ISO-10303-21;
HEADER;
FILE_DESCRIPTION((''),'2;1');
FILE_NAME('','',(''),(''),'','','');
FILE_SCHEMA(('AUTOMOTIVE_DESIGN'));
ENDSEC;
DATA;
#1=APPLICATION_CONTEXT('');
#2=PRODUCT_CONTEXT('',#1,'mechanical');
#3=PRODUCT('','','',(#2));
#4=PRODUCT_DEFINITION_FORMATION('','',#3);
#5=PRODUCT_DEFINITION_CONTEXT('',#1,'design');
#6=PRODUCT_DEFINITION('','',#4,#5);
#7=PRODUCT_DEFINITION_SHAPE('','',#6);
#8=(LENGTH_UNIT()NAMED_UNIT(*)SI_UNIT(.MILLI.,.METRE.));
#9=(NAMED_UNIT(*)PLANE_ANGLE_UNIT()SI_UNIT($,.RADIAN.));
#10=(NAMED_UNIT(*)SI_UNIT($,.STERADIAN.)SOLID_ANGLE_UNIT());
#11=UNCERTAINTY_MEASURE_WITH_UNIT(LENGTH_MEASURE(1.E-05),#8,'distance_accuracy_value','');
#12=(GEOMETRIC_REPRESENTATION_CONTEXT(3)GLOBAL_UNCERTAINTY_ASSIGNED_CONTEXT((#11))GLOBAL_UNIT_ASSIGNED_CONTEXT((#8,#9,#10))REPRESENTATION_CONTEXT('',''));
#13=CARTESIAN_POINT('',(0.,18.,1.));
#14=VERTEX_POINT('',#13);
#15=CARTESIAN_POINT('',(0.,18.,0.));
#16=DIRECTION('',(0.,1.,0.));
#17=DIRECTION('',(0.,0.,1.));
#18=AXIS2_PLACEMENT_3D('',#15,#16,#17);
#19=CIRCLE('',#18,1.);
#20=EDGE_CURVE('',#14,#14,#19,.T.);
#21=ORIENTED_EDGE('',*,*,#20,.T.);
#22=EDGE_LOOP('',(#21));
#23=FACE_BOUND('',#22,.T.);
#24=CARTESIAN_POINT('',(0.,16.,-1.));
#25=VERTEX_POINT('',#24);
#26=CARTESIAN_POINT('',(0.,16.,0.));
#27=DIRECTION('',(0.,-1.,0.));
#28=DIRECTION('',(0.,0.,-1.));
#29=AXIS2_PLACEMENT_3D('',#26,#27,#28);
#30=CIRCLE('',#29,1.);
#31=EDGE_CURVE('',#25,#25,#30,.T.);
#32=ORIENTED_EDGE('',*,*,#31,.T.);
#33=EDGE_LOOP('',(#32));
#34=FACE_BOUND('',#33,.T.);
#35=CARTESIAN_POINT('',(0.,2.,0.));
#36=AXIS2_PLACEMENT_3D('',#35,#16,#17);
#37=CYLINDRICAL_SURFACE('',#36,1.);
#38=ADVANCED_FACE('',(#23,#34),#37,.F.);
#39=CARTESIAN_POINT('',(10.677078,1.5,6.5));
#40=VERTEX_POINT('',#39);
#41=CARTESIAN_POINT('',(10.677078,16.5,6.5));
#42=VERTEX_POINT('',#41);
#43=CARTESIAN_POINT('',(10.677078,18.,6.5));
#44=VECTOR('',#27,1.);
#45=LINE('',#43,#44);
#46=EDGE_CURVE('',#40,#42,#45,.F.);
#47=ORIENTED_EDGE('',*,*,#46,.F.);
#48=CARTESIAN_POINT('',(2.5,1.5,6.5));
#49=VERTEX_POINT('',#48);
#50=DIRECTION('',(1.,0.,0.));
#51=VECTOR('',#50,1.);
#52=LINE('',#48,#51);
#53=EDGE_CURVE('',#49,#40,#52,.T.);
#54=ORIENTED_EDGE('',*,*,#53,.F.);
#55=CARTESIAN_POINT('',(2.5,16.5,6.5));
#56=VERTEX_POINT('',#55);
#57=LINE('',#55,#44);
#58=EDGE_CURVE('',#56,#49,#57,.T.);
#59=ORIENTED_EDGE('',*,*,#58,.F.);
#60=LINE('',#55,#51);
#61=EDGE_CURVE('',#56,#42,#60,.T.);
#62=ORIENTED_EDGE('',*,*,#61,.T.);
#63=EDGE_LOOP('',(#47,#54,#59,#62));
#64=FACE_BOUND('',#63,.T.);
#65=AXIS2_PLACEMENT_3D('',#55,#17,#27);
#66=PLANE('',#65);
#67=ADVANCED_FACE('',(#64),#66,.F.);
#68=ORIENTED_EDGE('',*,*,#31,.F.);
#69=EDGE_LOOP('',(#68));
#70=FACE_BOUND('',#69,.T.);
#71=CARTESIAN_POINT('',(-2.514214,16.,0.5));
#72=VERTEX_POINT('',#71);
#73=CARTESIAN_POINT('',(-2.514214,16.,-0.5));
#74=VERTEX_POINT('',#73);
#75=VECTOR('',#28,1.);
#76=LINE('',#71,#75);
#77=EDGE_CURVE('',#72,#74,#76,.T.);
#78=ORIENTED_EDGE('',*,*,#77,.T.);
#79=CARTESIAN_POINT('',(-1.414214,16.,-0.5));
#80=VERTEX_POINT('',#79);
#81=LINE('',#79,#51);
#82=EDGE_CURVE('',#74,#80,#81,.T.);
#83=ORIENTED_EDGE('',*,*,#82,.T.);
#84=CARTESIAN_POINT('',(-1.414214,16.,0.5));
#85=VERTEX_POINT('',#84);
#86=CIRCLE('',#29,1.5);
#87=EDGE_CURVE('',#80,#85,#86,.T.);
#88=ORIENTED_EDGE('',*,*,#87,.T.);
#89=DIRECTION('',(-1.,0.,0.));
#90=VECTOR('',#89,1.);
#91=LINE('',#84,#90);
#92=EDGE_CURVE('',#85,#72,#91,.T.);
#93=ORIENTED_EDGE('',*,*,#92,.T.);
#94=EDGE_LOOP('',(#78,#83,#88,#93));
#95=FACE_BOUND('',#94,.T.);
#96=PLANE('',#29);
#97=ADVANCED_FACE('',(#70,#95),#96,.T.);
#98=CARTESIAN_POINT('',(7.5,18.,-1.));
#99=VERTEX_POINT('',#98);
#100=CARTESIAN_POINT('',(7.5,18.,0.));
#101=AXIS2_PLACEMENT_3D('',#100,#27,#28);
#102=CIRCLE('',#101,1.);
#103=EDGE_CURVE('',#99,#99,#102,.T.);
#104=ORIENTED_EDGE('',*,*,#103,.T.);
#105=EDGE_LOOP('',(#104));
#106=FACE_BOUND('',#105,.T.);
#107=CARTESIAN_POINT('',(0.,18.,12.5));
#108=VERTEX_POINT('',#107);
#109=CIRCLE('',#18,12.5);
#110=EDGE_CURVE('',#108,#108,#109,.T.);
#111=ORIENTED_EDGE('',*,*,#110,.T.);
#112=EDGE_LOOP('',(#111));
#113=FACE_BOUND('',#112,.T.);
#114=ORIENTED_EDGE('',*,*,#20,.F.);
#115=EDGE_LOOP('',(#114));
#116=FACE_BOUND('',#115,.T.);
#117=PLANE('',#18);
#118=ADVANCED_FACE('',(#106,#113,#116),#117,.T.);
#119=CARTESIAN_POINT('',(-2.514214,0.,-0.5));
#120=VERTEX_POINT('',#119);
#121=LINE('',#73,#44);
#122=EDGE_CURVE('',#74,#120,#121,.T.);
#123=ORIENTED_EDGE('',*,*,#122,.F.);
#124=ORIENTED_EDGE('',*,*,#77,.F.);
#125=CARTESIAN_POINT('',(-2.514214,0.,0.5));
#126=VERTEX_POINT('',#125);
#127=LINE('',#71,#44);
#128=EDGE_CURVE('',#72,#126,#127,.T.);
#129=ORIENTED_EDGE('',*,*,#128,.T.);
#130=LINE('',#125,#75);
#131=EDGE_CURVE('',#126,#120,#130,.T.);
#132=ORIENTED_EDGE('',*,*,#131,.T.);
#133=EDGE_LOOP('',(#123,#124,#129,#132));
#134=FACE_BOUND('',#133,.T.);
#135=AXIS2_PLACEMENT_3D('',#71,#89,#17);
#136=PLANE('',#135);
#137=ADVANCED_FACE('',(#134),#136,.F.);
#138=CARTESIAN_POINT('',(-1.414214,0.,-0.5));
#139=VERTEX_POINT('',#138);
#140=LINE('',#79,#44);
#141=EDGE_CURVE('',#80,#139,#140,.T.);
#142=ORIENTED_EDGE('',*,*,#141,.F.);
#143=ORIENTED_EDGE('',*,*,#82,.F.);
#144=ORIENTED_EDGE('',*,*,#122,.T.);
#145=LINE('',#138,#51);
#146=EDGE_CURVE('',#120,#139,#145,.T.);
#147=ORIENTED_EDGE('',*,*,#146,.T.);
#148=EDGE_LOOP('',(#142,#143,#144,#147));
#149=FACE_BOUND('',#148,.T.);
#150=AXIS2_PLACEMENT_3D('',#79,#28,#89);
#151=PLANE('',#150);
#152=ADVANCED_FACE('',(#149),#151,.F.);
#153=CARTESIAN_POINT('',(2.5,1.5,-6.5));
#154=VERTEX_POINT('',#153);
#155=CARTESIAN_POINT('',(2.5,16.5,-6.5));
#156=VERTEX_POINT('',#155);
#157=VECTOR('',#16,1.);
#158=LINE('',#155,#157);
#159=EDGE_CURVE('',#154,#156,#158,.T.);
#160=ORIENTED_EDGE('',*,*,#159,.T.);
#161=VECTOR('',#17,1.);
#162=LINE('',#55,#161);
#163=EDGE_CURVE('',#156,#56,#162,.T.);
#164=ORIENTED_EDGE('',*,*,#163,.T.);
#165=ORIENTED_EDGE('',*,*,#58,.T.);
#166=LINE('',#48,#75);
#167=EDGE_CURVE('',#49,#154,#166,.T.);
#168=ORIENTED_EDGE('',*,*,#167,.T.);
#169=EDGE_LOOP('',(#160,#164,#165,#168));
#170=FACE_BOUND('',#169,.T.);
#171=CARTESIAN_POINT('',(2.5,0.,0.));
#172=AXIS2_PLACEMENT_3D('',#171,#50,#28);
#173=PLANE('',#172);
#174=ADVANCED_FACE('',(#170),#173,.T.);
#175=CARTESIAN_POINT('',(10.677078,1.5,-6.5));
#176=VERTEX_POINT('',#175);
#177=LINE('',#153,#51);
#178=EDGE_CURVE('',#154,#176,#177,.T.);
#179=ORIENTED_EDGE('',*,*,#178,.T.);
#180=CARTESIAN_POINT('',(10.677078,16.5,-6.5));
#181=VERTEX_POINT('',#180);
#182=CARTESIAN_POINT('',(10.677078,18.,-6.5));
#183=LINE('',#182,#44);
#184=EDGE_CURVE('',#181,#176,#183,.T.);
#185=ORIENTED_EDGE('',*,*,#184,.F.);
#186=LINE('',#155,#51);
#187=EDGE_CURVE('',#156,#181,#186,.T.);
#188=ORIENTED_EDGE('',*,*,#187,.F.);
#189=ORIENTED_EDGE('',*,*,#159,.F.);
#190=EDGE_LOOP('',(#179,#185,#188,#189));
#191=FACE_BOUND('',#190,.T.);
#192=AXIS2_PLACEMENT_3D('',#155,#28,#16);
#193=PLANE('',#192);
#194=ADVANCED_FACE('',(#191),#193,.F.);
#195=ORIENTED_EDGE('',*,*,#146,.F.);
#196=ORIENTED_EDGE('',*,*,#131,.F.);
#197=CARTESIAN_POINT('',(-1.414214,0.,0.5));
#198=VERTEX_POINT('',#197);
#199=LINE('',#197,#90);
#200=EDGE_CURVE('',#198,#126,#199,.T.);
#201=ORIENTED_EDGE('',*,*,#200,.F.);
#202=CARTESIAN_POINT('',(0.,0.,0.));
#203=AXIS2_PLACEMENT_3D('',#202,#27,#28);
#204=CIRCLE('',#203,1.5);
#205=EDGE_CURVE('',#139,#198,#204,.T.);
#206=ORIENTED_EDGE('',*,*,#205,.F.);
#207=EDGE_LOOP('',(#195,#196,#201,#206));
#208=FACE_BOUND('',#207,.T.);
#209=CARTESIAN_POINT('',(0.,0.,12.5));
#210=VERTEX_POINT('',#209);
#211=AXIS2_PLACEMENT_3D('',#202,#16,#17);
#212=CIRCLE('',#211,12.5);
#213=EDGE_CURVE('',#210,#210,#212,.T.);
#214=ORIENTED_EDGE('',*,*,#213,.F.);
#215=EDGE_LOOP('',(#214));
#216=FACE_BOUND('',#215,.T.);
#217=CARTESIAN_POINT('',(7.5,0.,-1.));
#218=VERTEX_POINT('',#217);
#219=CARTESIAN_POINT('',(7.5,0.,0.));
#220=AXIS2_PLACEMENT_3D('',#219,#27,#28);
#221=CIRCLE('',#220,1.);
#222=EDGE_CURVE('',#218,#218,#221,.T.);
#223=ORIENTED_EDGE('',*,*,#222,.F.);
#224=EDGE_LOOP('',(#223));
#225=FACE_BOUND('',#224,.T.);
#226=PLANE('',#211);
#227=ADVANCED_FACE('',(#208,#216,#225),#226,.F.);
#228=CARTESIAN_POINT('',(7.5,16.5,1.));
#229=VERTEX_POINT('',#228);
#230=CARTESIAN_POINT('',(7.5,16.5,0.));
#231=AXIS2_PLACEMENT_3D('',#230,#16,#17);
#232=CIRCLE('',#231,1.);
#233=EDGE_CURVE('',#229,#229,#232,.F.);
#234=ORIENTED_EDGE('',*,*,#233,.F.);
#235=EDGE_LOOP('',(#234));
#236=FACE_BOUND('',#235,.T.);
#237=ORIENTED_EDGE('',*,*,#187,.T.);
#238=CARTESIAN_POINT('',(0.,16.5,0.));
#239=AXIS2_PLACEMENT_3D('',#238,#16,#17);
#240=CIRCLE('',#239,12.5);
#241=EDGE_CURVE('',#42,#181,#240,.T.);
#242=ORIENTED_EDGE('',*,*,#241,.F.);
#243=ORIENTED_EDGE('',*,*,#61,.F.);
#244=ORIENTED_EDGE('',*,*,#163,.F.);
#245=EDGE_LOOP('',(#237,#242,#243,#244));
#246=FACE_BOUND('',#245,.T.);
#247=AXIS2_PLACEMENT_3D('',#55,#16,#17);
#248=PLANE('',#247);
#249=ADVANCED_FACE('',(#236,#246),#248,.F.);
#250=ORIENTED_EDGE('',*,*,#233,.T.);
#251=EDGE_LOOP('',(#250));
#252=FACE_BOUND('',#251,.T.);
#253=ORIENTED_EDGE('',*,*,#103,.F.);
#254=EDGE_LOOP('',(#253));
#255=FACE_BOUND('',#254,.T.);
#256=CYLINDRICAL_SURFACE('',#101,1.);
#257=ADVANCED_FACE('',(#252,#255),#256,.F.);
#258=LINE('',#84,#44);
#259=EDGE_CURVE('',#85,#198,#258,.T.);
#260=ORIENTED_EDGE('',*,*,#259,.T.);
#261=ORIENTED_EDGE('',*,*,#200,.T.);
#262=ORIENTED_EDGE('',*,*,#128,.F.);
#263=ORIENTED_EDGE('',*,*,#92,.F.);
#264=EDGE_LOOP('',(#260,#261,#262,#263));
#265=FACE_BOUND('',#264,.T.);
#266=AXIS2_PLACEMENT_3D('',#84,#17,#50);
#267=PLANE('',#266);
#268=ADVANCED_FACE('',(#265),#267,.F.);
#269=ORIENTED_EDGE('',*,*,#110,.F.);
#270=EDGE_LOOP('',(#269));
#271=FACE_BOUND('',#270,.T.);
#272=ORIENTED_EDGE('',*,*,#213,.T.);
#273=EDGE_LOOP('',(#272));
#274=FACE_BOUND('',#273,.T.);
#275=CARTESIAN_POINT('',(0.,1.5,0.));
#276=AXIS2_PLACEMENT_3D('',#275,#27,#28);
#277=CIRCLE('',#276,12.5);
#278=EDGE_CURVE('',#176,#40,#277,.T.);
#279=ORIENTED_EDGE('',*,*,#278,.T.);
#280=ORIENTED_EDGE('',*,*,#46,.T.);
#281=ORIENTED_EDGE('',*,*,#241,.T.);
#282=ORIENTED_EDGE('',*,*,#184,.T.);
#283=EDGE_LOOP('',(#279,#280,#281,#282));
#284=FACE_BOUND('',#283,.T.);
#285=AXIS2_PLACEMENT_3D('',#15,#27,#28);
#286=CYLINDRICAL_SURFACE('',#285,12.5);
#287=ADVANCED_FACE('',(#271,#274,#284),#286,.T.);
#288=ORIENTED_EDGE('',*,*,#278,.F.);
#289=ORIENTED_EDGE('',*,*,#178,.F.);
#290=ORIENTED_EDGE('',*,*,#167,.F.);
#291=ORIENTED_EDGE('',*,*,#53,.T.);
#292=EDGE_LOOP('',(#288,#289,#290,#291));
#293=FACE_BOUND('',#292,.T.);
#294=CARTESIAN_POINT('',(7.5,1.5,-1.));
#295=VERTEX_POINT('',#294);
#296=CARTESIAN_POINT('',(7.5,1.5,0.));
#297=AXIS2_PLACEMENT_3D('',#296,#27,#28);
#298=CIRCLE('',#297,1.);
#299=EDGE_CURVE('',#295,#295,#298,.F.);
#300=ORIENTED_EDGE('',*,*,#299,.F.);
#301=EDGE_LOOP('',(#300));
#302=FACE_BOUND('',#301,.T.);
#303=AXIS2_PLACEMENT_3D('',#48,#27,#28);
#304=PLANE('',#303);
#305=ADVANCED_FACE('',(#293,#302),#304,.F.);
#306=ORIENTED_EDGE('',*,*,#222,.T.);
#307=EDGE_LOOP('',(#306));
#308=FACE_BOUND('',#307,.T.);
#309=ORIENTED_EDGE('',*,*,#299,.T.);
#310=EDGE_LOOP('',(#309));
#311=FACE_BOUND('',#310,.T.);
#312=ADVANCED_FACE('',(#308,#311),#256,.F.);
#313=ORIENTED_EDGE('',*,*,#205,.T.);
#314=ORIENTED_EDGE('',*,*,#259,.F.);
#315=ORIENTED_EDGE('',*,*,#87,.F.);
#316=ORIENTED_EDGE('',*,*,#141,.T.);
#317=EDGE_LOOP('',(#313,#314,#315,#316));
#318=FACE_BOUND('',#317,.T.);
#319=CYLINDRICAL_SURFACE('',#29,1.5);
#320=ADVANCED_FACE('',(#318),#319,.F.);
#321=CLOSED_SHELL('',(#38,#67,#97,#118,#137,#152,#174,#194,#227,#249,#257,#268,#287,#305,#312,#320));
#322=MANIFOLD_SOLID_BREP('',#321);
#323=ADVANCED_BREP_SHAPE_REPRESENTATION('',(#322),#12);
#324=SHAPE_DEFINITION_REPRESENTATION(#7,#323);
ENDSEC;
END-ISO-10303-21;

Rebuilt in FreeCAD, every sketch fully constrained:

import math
import FreeCAD as App
import Part
import Sketcher
from FreeCAD import Vector

doc = App.newDocument("Part")
body = doc.addObject("PartDesign::Body", "Body")

sketch1 = body.newObject("Sketcher::SketchObject", "Sketch")
sketch1.AttachmentSupport = (doc.getObject("XZ_Plane"), [""])
sketch1.MapMode = "FlatFace"
sketch1.addGeometry(Part.Circle(Vector(0, 0, 0), Vector(0, 0, 1), 12.5), False)
sketch1.addConstraint(Sketcher.Constraint("Coincident", 0, 3, -1, 1))
sketch1.addConstraint(Sketcher.Constraint("Diameter", 0, 25.0))
pad1 = body.newObject("PartDesign::Pad", "Pad")
pad1.Profile = sketch1
pad1.Length = 18
pad1.Reversed = True

sketch2 = body.newObject("Sketcher::SketchObject", "Sketch001")
sketch2.AttachmentSupport = (doc.getObject("XZ_Plane"), [""])
sketch2.MapMode = "FlatFace"
sketch2.addGeometry(Part.Circle(Vector(7.5, 0, 0), Vector(0, 0, 1), 1), False)
sketch2.addConstraint(Sketcher.Constraint("PointOnObject", 0, 3, -1))
sketch2.addConstraint(Sketcher.Constraint("Diameter", 0, 2.0))
sketch2.addConstraint(Sketcher.Constraint("DistanceX", -1, 1, 0, 3, 7.5))
pocket1 = body.newObject("PartDesign::Pocket", "Pocket")
pocket1.Profile = sketch2
pocket1.Type = "ThroughAll"

sketch3 = body.newObject("Sketcher::SketchObject", "Sketch002")
sketch3.AttachmentSupport = (doc.getObject("YZ_Plane"), [""])
sketch3.MapMode = "FlatFace"
sketch3.AttachmentOffset = App.Placement(Vector(0, 0, 12.5), App.Rotation())
sketch3.addGeometry(Part.LineSegment(Vector(16.5, 6.5, 0), Vector(1.5, 6.5, 0)), False)
sketch3.addGeometry(Part.LineSegment(Vector(1.5, 6.5, 0), Vector(1.5, -6.5, 0)), False)
sketch3.addGeometry(Part.LineSegment(Vector(1.5, -6.5, 0), Vector(16.5, -6.5, 0)), False)
sketch3.addGeometry(Part.LineSegment(Vector(16.5, -6.5, 0), Vector(16.5, 6.5, 0)), False)
sketch3.addConstraint(Sketcher.Constraint("Coincident", 0, 2, 1, 1))
sketch3.addConstraint(Sketcher.Constraint("Coincident", 1, 2, 2, 1))
sketch3.addConstraint(Sketcher.Constraint("Coincident", 2, 2, 3, 1))
sketch3.addConstraint(Sketcher.Constraint("Coincident", 3, 2, 0, 1))
sketch3.addConstraint(Sketcher.Constraint("Horizontal", 0))
sketch3.addConstraint(Sketcher.Constraint("Vertical", 1))
sketch3.addConstraint(Sketcher.Constraint("Horizontal", 2))
sketch3.addConstraint(Sketcher.Constraint("Vertical", 3))
sketch3.addConstraint(Sketcher.Constraint("DistanceX", 0, 2, 0, 1, 15.0))
sketch3.addConstraint(Sketcher.Constraint("DistanceY", 1, 2, 1, 1, 13.0))
sketch3.addConstraint(Sketcher.Constraint("DistanceX", -1, 1, 0, 2, 1.5))
sketch3.addConstraint(Sketcher.Constraint("DistanceY", -1, 1, 0, 2, 6.5))
pocket2 = body.newObject("PartDesign::Pocket", "Pocket001")
pocket2.Profile = sketch3
pocket2.Length = 10

sketch4 = body.newObject("Sketcher::SketchObject", "Sketch003")
sketch4.AttachmentSupport = (doc.getObject("XZ_Plane"), [""])
sketch4.MapMode = "FlatFace"
sketch4.addGeometry(Part.LineSegment(Vector(-1.414214, 0.5, 0), Vector(-2.514214, 0.5, 0)), False)
sketch4.addGeometry(Part.LineSegment(Vector(-2.514214, 0.5, 0), Vector(-2.514214, -0.5, 0)), False)
sketch4.addGeometry(Part.LineSegment(Vector(-2.514214, -0.5, 0), Vector(-1.414214, -0.5, 0)), False)
sketch4.addGeometry(Part.ArcOfCircle(Part.Circle(Vector(0, 0, 0), Vector(0, 0, 1), 1.5), math.radians(-160.528779), math.radians(160.528779)), False)
sketch4.addConstraint(Sketcher.Constraint("Coincident", 0, 2, 1, 1))
sketch4.addConstraint(Sketcher.Constraint("Coincident", 1, 2, 2, 1))
sketch4.addConstraint(Sketcher.Constraint("Coincident", 2, 2, 3, 1))
sketch4.addConstraint(Sketcher.Constraint("Coincident", 3, 2, 0, 1))
sketch4.addConstraint(Sketcher.Constraint("Horizontal", 0))
sketch4.addConstraint(Sketcher.Constraint("Vertical", 1))
sketch4.addConstraint(Sketcher.Constraint("Horizontal", 2))
sketch4.addConstraint(Sketcher.Constraint("Coincident", 3, 3, -1, 1))
sketch4.addConstraint(Sketcher.Constraint("Vertical", 2, 2, 3, 2))
sketch4.addConstraint(Sketcher.Constraint("Radius", 3, 1.5))
sketch4.addConstraint(Sketcher.Constraint("DistanceY", 1, 2, 1, 1, 1.0))
sketch4.addConstraint(Sketcher.Constraint("DistanceX", 0, 2, 0, 1, 1.1))
pocket3 = body.newObject("PartDesign::Pocket", "Pocket002")
pocket3.Profile = sketch4
pocket3.Length = 16

sketch5 = body.newObject("Sketcher::SketchObject", "Sketch004")
sketch5.AttachmentSupport = (doc.getObject("XZ_Plane"), [""])
sketch5.MapMode = "FlatFace"
sketch5.AttachmentOffset = App.Placement(Vector(0, 0, -18), App.Rotation())
sketch5.addGeometry(Part.Circle(Vector(0, 0, 0), Vector(0, 0, 1), 1), False)
sketch5.addConstraint(Sketcher.Constraint("Coincident", 0, 3, -1, 1))
sketch5.addConstraint(Sketcher.Constraint("Diameter", 0, 2.0))
pocket4 = body.newObject("PartDesign::Pocket", "Pocket003")
pocket4.Profile = sketch5
pocket4.Length = 16
pocket4.Reversed = True

doc.recompute()
